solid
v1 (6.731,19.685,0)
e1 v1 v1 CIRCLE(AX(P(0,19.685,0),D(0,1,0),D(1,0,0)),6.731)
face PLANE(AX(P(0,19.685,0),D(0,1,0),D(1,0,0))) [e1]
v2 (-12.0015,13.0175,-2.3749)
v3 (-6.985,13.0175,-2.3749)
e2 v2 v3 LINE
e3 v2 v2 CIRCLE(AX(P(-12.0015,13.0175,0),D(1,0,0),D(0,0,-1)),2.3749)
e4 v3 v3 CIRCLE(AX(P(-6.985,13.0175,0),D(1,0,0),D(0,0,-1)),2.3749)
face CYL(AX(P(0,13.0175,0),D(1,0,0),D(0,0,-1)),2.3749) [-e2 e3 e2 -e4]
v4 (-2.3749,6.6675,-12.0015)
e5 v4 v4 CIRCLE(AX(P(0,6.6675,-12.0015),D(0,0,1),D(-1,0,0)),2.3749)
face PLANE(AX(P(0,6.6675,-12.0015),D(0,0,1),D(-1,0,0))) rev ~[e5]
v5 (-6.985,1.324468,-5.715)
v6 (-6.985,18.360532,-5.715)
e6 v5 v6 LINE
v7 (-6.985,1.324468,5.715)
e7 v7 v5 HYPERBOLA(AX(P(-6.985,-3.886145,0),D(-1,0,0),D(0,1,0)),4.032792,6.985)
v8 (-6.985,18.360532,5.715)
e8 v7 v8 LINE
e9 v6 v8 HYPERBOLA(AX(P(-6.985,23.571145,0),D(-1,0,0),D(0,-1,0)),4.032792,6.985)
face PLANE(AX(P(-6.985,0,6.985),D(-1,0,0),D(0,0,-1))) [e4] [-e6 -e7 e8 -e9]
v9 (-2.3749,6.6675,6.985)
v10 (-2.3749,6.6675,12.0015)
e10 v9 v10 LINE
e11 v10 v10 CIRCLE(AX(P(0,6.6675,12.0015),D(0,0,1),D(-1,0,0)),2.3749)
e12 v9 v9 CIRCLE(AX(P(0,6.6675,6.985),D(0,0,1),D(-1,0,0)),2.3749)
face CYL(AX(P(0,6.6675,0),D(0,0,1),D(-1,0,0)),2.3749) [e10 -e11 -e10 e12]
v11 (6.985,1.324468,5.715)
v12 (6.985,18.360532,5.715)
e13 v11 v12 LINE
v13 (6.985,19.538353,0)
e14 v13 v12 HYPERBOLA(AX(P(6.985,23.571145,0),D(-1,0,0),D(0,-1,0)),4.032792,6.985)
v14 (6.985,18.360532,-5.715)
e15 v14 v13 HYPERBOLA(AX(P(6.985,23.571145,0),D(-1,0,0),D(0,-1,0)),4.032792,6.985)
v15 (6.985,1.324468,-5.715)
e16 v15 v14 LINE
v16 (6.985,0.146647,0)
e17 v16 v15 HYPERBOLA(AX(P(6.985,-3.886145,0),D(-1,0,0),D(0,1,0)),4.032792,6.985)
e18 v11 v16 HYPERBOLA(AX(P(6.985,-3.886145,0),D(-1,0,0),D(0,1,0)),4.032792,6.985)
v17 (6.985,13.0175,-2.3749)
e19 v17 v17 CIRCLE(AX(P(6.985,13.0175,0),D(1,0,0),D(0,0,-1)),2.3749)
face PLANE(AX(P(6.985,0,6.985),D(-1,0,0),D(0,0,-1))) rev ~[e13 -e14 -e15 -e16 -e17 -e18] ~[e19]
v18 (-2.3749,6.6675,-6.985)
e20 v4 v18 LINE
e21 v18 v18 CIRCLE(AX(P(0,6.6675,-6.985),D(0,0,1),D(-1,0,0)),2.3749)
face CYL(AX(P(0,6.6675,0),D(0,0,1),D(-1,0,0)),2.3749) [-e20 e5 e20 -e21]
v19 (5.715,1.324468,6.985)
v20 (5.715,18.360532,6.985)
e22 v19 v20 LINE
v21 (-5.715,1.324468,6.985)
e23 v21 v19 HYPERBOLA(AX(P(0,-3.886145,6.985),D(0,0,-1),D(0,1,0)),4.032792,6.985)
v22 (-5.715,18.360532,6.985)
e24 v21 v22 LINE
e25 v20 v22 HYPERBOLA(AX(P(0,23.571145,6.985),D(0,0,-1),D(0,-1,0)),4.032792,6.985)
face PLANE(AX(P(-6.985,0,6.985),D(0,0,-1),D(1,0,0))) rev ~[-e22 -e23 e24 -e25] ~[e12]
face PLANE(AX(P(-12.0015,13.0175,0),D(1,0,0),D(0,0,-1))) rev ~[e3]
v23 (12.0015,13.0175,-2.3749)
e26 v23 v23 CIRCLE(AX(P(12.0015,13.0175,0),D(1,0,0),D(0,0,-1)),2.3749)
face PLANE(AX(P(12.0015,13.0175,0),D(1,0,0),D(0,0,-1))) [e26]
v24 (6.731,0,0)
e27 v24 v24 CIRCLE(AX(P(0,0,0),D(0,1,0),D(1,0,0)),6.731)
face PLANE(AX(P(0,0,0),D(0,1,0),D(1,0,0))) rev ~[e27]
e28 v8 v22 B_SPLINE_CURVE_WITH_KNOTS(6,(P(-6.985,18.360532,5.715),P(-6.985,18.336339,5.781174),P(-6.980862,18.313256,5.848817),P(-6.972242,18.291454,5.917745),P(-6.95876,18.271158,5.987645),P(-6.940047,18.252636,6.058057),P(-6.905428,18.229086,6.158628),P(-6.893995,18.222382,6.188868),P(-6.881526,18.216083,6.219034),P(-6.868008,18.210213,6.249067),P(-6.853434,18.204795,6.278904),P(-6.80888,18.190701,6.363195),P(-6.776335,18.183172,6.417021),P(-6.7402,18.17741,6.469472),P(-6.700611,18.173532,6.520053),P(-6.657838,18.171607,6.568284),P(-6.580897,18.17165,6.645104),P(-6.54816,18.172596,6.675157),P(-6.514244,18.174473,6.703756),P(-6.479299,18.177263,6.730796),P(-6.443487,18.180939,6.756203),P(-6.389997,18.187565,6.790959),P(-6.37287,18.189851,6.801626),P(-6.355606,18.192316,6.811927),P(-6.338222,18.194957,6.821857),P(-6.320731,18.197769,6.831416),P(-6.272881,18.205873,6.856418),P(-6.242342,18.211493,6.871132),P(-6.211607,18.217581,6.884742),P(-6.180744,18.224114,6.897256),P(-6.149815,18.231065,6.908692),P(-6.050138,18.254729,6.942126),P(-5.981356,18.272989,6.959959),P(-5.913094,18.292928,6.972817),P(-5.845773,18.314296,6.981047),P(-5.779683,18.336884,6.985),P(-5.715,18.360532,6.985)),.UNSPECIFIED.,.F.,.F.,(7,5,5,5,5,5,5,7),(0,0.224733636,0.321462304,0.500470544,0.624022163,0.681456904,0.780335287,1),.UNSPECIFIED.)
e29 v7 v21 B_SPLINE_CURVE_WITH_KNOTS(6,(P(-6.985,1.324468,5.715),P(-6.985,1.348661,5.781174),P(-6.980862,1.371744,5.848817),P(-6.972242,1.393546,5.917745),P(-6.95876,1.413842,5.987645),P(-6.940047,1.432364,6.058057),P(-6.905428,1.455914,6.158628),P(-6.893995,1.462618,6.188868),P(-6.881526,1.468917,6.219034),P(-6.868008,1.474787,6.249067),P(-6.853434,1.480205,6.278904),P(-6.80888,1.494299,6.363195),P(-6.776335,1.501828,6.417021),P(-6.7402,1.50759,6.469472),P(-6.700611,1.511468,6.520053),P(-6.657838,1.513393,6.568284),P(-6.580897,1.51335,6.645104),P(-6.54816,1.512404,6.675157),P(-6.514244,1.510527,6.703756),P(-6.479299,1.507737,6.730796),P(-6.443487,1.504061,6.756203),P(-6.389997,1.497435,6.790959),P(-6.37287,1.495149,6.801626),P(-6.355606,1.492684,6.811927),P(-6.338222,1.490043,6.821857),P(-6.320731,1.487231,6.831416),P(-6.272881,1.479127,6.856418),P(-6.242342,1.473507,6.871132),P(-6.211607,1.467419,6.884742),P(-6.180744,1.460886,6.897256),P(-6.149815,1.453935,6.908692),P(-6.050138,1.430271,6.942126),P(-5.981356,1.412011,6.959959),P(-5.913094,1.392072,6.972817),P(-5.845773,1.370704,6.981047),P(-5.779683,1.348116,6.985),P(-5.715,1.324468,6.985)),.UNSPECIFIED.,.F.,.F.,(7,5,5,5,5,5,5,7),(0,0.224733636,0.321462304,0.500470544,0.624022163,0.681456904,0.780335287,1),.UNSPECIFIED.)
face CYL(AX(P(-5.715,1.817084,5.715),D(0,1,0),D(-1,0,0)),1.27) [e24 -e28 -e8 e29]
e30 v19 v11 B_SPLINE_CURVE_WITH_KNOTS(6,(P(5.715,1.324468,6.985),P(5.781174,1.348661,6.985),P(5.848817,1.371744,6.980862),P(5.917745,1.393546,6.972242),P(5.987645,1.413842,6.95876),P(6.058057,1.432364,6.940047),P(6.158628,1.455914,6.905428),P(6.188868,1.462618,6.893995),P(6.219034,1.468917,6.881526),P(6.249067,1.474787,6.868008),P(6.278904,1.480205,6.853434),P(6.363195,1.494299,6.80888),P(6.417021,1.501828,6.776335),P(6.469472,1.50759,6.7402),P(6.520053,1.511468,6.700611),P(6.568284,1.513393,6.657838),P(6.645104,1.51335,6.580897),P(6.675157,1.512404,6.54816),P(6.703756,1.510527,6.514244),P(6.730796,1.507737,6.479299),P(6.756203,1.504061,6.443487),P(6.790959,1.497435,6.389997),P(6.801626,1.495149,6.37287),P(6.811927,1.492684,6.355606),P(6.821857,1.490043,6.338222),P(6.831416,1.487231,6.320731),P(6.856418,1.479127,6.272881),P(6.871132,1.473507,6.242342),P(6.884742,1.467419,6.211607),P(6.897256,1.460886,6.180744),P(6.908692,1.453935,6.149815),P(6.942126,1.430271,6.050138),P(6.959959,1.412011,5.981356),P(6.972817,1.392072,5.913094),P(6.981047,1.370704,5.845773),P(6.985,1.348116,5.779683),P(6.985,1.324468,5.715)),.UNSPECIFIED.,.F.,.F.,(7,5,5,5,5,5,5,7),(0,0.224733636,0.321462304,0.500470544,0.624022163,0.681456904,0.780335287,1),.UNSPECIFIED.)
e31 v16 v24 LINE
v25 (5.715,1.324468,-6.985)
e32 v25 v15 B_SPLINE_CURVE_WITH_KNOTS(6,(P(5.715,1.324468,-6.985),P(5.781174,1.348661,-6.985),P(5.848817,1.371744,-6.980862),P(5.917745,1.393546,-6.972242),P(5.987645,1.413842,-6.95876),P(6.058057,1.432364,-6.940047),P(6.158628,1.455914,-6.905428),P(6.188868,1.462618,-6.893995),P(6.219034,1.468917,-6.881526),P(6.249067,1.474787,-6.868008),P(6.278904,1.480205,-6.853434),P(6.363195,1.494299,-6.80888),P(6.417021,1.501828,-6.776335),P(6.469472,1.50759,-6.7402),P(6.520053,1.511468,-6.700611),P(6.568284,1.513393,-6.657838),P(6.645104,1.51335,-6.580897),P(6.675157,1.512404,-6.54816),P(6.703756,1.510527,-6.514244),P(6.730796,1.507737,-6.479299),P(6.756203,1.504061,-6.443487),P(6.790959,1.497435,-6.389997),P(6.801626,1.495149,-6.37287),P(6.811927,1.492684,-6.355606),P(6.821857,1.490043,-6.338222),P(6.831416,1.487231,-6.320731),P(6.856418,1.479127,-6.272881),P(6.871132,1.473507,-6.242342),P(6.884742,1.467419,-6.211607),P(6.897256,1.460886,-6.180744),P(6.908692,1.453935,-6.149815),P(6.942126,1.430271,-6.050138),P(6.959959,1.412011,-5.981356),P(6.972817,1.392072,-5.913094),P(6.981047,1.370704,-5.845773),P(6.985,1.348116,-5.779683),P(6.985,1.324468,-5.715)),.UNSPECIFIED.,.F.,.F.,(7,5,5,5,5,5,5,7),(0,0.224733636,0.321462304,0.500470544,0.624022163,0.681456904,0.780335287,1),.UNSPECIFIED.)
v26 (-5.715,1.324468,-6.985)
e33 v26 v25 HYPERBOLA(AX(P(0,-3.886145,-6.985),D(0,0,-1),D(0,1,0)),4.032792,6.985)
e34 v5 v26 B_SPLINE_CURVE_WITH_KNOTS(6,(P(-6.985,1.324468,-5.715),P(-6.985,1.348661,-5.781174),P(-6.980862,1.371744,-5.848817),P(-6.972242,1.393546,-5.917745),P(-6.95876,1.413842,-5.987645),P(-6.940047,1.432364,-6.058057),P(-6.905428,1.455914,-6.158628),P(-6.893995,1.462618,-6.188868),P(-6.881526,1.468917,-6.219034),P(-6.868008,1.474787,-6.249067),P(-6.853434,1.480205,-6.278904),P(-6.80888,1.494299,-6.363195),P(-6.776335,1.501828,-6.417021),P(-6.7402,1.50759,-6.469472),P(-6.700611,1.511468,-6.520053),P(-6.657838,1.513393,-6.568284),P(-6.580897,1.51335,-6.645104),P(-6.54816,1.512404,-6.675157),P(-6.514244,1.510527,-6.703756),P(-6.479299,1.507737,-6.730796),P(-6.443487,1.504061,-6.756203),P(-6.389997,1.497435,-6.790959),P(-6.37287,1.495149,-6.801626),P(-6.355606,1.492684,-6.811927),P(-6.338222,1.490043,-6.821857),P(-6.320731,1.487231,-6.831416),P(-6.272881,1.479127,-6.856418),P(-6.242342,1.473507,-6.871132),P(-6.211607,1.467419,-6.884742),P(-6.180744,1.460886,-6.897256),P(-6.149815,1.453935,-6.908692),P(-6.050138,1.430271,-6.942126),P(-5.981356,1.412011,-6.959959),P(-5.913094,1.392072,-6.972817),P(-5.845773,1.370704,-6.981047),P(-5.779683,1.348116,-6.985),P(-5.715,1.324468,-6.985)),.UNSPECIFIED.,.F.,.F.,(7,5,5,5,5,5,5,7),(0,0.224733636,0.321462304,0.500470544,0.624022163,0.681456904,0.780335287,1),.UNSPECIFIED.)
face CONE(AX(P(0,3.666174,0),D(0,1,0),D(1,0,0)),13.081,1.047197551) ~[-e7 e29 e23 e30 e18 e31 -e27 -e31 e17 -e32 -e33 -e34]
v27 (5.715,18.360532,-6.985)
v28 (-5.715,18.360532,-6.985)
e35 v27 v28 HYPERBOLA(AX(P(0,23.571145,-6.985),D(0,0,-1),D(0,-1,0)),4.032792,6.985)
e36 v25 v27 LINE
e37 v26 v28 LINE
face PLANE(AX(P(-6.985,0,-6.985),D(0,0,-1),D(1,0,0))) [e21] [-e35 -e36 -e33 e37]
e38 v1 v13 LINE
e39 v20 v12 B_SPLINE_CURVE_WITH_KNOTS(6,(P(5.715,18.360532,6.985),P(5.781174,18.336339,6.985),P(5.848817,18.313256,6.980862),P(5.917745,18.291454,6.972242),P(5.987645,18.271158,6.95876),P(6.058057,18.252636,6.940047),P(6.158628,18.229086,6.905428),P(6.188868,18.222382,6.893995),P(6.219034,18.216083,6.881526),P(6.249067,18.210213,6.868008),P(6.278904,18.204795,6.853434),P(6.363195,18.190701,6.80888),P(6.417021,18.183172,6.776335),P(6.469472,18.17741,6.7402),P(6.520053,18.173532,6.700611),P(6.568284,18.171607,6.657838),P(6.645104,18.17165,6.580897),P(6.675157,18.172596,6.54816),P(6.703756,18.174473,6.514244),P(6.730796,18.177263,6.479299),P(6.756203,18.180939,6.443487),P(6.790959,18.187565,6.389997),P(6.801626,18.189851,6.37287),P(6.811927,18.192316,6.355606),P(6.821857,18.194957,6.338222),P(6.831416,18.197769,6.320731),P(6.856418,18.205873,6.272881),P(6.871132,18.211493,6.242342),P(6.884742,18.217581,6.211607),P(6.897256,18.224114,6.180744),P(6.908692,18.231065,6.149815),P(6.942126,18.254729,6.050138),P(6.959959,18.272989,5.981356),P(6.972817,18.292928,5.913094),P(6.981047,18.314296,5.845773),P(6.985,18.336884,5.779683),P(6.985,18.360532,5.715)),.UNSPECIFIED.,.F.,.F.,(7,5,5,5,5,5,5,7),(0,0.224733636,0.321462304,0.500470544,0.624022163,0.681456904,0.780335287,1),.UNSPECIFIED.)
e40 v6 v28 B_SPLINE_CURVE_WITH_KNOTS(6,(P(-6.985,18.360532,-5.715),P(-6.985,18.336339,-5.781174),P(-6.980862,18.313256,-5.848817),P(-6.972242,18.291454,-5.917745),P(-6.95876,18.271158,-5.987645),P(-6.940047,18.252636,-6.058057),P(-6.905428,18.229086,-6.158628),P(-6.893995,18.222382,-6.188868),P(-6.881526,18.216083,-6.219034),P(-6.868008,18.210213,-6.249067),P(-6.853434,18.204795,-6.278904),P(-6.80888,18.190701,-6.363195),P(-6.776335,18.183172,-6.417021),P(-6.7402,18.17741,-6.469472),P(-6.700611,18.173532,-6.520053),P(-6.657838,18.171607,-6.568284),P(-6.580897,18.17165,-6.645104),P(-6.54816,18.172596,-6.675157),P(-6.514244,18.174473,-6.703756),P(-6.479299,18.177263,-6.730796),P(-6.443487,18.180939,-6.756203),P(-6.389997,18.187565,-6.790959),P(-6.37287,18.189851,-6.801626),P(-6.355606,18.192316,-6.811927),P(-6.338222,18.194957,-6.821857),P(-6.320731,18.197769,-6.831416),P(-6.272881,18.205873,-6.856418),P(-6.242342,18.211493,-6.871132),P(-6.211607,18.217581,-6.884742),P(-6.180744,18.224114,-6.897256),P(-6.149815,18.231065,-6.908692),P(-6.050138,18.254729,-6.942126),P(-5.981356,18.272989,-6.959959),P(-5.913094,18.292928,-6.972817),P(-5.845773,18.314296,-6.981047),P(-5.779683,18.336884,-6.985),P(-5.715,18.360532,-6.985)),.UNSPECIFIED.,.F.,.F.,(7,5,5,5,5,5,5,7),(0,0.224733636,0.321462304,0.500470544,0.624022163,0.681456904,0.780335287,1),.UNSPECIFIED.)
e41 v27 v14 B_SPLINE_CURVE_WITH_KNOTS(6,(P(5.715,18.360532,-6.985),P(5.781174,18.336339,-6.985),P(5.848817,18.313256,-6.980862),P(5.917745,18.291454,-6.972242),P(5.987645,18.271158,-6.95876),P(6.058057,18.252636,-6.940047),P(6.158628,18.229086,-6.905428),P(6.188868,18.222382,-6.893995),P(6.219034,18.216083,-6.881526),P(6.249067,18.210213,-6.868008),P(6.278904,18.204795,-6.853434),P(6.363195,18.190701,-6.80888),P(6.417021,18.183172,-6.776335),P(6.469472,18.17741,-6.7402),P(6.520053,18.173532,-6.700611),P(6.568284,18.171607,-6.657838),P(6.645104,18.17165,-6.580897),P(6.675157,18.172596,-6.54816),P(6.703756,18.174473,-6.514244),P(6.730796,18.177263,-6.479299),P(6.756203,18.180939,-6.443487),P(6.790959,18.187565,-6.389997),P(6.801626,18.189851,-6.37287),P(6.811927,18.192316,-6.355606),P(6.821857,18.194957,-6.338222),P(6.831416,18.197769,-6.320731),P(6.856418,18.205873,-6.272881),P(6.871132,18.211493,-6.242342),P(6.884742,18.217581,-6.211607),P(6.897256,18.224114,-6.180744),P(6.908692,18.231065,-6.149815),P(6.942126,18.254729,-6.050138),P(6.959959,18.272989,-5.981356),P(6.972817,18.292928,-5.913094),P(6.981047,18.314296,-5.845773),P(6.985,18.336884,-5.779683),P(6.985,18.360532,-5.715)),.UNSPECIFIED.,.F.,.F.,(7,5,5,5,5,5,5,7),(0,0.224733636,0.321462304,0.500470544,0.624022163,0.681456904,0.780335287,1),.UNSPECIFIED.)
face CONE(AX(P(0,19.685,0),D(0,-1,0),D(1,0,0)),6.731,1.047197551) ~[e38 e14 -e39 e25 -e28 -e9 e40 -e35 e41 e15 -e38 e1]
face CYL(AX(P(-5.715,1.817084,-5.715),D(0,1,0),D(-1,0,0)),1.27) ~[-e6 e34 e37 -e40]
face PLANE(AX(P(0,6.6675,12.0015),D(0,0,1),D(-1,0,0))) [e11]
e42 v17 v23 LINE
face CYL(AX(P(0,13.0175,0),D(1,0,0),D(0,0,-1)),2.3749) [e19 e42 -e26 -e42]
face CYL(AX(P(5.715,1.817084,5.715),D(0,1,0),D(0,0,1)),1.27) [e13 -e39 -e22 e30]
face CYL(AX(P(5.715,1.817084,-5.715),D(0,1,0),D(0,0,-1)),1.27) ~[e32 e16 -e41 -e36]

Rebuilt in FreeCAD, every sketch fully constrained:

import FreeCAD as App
import Part
import Sketcher

V = App.Vector
Q = App.Units.Quantity


def edges_at(feature, points):
    """Names of the edges that pass closest to the given points."""
    edges = feature.Shape.Edges
    near = lambda p: min(range(len(edges)), key=lambda i: edges[i].distToShape(Part.Vertex(*p))[0])
    return sorted({f"Edge{near(p) + 1}" for p in points})

doc = App.newDocument("Part")
body = doc.addObject("PartDesign::Body", "Body")

# Sketch on XZ plane
sketch1 = body.newObject("Sketcher::SketchObject", "Sketch")
sketch1.AttachmentSupport = (doc.getObject("XZ_Plane"), [""])
sketch1.MapMode = "FlatFace"
sketch1.addGeometry(Part.LineSegment(V(-7, -7, 0), V(-7, 7, 0)), False)
sketch1.addGeometry(Part.LineSegment(V(-7, 7, 0), V(7, 7, 0)), False)
sketch1.addGeometry(Part.LineSegment(V(7, 7, 0), V(7, -7, 0)), False)
sketch1.addGeometry(Part.LineSegment(V(7, -7, 0), V(-7, -7, 0)), False)
sketch1.addConstraint(Sketcher.Constraint("Coincident", 0, 2, 1, 1))
sketch1.addConstraint(Sketcher.Constraint("Coincident", 1, 2, 2, 1))
sketch1.addConstraint(Sketcher.Constraint("Coincident", 2, 2, 3, 1))
sketch1.addConstraint(Sketcher.Constraint("Coincident", 3, 2, 0, 1))
sketch1.addConstraint(Sketcher.Constraint("Vertical", 0))
sketch1.addConstraint(Sketcher.Constraint("Horizontal", 1))
sketch1.addConstraint(Sketcher.Constraint("Vertical", 2))
sketch1.addConstraint(Sketcher.Constraint("Horizontal", 3))
sketch1.addConstraint(Sketcher.Constraint("Symmetric", 0, 2, 2, 2, -1, 1))
sketch1.addConstraint(Sketcher.Constraint("Equal", 3, 0))
sketch1.addConstraint(Sketcher.Constraint("DistanceX", 1, 1, 1, 2, Q("0.55 in")))
pad1 = body.newObject("PartDesign::Pad", "Pad")
pad1.Profile = sketch1
pad1.Length = Q("0.775 in")
pad1.Reversed = True

# Sketch on XY plane
sketch2 = body.newObject("Sketcher::SketchObject", "Sketch001")
sketch2.AttachmentSupport = (doc.getObject("XY_Plane"), [""])
sketch2.MapMode = "FlatFace"
sketch2.addGeometry(Part.LineSegment(V(-13, 16, 0), V(-7, 20, 0)), False)
sketch2.addGeometry(Part.LineSegment(V(-7, 20, 0), V(-16, 20, 0)), False)
sketch2.addGeometry(Part.LineSegment(V(-16, 20, 0), V(-16, 0, 0)), False)
sketch2.addGeometry(Part.LineSegment(V(-16, 0, 0), V(-7, 0, 0)), False)
sketch2.addGeometry(Part.LineSegment(V(-7, 0, 0), V(-13, 4, 0)), False)
sketch2.addGeometry(Part.LineSegment(V(-13, 4, 0), V(-13, 16, 0)), False)
sketch2.addConstraint(Sketcher.Constraint("Coincident", 0, 2, 1, 1))
sketch2.addConstraint(Sketcher.Constraint("Coincident", 1, 2, 2, 1))
sketch2.addConstraint(Sketcher.Constraint("Coincident", 2, 2, 3, 1))
sketch2.addConstraint(Sketcher.Constraint("Coincident", 3, 2, 4, 1))
sketch2.addConstraint(Sketcher.Constraint("Coincident", 4, 2, 5, 1))
sketch2.addConstraint(Sketcher.Constraint("Coincident", 5, 2, 0, 1))
sketch2.addConstraint(Sketcher.Constraint("Horizontal", 1))
sketch2.addConstraint(Sketcher.Constraint("Vertical", 2))
sketch2.addConstraint(Sketcher.Constraint("Horizontal", 3))
sketch2.addConstraint(Sketcher.Constraint("Vertical", 5))
sketch2.addConstraint(Sketcher.Constraint("PointOnObject", 2, 2, -1))
sketch2.addConstraint(Sketcher.Constraint("Vertical", 0, 2, 3, 2))
sketch2.addConstraint(Sketcher.Constraint("Equal", 0, 4))
sketch2.addConstraint(Sketcher.Constraint("Angle", 0, Q("30 deg")))
sketch2.addConstraint(Sketcher.Constraint("DistanceX", 1, 2, 1, 1, Q("0.35 in")))
sketch2.addConstraint(Sketcher.Constraint("DistanceX", 2, 2, 4, 2, Q("0.1 in")))
sketch2.addConstraint(Sketcher.Constraint("DistanceY", 2, 2, 2, 1, Q("0.775 in")))
sketch2.addConstraint(Sketcher.Constraint("DistanceX", 0, 2, -1, 1, Q("0.265 in")))
groove = body.newObject("PartDesign::Groove", "Groove")
groove.Profile = sketch2
groove.ReferenceAxis = (sketch2, ["V_Axis"])
groove.Angle = 360

# Sketch on XY plane
sketch3 = body.newObject("Sketcher::SketchObject", "Sketch002")
sketch3.AttachmentSupport = (doc.getObject("XY_Plane"), [""])
sketch3.MapMode = "FlatFace"
sketch3.addGeometry(Part.Circle(V(0, 6.7, 0), V(0, 0, 1), 2.4), False)
sketch3.addConstraint(Sketcher.Constraint("PointOnObject", 0, 3, -2))
sketch3.addConstraint(Sketcher.Constraint("Diameter", 0, Q("0.187 in")))
sketch3.addConstraint(Sketcher.Constraint("DistanceY", -1, 1, 0, 3, Q("0.2625 in")))
pad2 = body.newObject("PartDesign::Pad", "Pad001")
pad2.Profile = sketch3
pad2.Length = Q("0.945 in")
pad2.Midplane = True

# Sketch on YZ plane
sketch4 = body.newObject("Sketcher::SketchObject", "Sketch003")
sketch4.AttachmentSupport = (doc.getObject("YZ_Plane"), [""])
sketch4.MapMode = "FlatFace"
sketch4.addGeometry(Part.Circle(V(13, 0, 0), V(0, 0, 1), 2.4), False)
sketch4.addConstraint(Sketcher.Constraint("PointOnObject", 0, 3, -1))
sketch4.addConstraint(Sketcher.Constraint("Diameter", 0, Q("0.187 in")))
sketch4.addConstraint(Sketcher.Constraint("DistanceX", -1, 1, 0, 3, Q("0.5125 in")))
pad3 = body.newObject("PartDesign::Pad", "Pad002")
pad3.Profile = sketch4
pad3.Length = Q("0.945 in")
pad3.Midplane = True
doc.recompute()

fillet = body.newObject("PartDesign::Fillet", "Fillet")
fillet.Base = (pad3, edges_at(pad3, [
    (6.985, 9.842, -6.985),
    (-6.985, 9.842, -6.985),
    (-6.985, 9.842, 6.985),
    (6.985, 9.842, 6.985),
]))
fillet.Radius = Q("0.05 in")

doc.recompute()
